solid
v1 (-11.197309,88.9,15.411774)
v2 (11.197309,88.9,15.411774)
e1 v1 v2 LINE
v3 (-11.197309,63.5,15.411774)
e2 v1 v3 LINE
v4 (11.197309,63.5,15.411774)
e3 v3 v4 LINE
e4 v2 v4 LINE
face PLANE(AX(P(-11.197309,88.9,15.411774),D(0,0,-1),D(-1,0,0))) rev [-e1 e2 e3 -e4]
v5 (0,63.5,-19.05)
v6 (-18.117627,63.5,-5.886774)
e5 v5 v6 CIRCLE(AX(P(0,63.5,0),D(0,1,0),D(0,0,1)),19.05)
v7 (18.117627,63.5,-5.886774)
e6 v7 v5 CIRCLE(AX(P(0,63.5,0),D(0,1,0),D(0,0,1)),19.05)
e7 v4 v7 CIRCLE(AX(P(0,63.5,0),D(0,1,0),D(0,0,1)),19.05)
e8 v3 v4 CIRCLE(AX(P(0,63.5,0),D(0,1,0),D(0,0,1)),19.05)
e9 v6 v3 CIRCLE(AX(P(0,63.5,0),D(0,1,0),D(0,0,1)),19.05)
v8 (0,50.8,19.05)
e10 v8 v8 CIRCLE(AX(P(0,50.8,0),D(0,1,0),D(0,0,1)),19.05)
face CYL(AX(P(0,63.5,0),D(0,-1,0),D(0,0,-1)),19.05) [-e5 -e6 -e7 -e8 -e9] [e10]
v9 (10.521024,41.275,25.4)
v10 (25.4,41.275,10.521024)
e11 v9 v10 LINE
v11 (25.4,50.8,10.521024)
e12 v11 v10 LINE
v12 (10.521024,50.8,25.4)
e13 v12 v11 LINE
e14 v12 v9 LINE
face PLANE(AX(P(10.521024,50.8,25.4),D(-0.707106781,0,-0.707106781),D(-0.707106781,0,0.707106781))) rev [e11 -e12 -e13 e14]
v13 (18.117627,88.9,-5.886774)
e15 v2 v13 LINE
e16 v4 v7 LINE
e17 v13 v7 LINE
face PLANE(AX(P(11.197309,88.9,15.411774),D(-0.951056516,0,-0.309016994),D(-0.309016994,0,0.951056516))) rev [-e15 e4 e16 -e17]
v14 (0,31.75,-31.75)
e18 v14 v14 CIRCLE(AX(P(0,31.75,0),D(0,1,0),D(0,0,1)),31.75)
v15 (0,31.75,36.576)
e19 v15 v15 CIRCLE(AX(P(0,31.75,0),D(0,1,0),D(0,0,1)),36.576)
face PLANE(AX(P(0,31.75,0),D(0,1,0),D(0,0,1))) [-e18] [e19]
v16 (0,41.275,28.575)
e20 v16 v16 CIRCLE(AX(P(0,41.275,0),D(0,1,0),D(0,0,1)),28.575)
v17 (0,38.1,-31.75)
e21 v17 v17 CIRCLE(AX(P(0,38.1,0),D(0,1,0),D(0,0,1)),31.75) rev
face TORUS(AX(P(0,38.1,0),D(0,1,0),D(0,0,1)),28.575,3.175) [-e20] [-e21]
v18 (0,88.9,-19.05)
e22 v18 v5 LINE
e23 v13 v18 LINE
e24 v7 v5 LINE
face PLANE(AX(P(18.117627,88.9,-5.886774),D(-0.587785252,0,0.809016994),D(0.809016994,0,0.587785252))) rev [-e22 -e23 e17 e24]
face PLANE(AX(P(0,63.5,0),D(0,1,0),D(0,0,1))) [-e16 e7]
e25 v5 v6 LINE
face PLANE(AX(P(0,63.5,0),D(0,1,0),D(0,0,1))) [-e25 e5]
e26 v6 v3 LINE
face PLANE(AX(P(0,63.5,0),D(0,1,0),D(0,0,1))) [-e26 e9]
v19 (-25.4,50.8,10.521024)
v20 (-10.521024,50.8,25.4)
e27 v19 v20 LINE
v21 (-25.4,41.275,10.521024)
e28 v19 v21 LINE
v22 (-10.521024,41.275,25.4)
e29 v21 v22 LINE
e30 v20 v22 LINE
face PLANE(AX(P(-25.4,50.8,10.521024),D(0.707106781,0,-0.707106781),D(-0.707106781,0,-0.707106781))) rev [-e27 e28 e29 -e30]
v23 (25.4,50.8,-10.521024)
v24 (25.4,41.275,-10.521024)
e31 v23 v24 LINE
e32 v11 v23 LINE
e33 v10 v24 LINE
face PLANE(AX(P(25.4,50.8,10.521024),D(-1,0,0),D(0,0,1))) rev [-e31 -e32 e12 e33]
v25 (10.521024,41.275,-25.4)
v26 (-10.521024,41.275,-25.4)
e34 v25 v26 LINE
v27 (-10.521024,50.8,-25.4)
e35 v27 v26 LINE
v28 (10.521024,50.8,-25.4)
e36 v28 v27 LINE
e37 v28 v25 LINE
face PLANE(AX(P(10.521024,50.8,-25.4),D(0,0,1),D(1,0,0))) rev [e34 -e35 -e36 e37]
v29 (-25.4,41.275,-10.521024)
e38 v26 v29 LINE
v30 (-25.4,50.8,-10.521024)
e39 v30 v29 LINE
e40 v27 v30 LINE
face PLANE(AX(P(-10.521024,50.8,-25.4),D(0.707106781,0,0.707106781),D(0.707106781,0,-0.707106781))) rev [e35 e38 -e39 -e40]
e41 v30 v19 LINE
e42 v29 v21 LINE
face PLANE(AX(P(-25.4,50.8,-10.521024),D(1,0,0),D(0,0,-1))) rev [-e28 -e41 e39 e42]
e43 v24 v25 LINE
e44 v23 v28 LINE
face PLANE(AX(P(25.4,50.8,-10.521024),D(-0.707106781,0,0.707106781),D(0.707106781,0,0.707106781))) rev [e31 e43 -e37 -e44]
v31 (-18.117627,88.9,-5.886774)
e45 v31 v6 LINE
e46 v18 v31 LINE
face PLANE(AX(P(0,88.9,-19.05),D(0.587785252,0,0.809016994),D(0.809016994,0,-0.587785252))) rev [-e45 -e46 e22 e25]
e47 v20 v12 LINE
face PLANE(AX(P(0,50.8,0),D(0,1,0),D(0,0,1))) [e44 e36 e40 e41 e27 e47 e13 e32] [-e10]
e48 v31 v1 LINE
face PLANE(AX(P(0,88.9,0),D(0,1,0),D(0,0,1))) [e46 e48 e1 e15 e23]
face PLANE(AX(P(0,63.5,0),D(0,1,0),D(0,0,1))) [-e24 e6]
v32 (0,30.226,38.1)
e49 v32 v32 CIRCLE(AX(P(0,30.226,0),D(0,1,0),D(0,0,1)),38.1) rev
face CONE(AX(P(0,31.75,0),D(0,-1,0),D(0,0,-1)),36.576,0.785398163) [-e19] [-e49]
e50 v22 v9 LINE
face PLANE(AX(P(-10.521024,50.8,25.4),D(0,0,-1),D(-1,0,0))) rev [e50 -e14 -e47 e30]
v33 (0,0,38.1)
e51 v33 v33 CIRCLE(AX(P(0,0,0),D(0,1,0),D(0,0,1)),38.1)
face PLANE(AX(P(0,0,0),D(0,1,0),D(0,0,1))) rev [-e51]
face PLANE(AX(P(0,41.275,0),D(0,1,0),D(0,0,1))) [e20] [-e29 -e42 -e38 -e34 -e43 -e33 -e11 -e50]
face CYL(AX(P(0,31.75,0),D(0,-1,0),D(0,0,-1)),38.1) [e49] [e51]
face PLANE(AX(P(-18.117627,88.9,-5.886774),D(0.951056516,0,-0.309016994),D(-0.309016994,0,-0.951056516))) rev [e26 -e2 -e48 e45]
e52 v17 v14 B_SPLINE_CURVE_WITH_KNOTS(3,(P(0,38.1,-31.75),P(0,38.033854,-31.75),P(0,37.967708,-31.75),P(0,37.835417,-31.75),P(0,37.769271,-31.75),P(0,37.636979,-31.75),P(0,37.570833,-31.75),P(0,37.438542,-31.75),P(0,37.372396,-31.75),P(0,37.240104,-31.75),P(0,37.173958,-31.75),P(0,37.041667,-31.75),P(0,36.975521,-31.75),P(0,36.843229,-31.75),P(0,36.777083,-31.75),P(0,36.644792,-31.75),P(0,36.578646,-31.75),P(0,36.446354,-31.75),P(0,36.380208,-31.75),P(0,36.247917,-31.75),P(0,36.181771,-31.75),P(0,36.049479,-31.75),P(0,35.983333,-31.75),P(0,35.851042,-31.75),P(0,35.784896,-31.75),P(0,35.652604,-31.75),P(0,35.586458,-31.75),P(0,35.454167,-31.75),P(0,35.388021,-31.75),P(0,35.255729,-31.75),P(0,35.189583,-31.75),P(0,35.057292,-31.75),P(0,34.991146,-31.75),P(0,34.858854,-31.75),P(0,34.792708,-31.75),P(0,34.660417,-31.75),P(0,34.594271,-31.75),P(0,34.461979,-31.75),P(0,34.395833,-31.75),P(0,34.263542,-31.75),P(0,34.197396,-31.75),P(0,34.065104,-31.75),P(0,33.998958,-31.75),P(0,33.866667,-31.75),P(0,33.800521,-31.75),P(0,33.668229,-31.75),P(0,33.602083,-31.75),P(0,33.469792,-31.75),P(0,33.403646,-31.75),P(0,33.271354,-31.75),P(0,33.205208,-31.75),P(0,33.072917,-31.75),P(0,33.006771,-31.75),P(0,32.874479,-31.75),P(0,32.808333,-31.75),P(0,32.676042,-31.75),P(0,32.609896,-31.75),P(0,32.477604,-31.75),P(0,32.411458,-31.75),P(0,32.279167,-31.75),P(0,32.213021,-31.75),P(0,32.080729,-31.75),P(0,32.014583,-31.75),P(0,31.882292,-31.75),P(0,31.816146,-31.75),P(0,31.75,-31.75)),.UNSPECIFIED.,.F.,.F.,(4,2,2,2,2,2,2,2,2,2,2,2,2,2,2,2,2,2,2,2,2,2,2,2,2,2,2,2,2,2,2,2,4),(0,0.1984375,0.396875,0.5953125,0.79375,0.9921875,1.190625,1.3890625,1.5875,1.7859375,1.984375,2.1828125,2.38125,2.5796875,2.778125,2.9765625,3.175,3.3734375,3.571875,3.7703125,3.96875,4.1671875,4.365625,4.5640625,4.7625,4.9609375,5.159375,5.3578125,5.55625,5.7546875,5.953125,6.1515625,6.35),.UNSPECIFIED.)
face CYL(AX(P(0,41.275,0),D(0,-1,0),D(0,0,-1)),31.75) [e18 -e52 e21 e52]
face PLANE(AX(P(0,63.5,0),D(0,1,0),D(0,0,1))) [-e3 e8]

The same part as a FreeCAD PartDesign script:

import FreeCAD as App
import Part
import Sketcher
Q = App.Units.Quantity


def edges_at(feature, points):
    """Names of the edges that pass closest to the given points."""
    edges = feature.Shape.Edges
    near = lambda p: min(range(len(edges)), key=lambda i: edges[i].distToShape(Part.Vertex(*p))[0])
    return sorted({f"Edge{near(p) + 1}" for p in points})

doc = App.newDocument("Part")
body = doc.addObject("PartDesign::Body", "Body")

# Sketch on XZ plane
sketch1 = body.newObject("Sketcher::SketchObject", "Sketch")
sketch1.AttachmentSupport = (doc.getObject("XZ_Plane"), [""])
sketch1.MapMode = "FlatFace"
sketch1.addGeometry(Part.Circle(App.Vector(0, 0, 0), App.Vector(0, 0, 1), 38), False)
sketch1.addConstraint(Sketcher.Constraint("Coincident", 0, 3, -1, 1))
sketch1.addConstraint(Sketcher.Constraint("Diameter", 0, Q("3 in")))
pad1 = body.newObject("PartDesign::Pad", "Pad")
pad1.Profile = sketch1
pad1.Length = Q("1.25 in")
pad1.Reversed = True
doc.recompute()

chamfer = body.newObject("PartDesign::Chamfer", "Chamfer")
chamfer.Base = (pad1, edges_at(pad1, [(0, 31.75, -38.1)]))
chamfer.Size = Q("0.06 in")

# Sketch on XZ plane
sketch2 = body.newObject("Sketcher::SketchObject", "Sketch001")
sketch2.AttachmentSupport = (doc.getObject("XZ_Plane"), [""])
sketch2.MapMode = "FlatFace"
sketch2.AttachmentOffset = App.Placement(App.Vector(0, 0, -1.25 * 25.4), App.Rotation())
sketch2.addGeometry(Part.Circle(App.Vector(0, 0, 0), App.Vector(0, 0, 1), 32), False)
sketch2.addConstraint(Sketcher.Constraint("Coincident", 0, 3, -1, 1))
sketch2.addConstraint(Sketcher.Constraint("Diameter", 0, Q("2.5 in")))
pad2 = body.newObject("PartDesign::Pad", "Pad001")
pad2.Profile = sketch2
pad2.Length = Q("0.375 in")
pad2.Reversed = True
doc.recompute()

fillet = body.newObject("PartDesign::Fillet", "Fillet")
fillet.Base = (pad2, edges_at(pad2, [(0, 41.275, 31.75)]))
fillet.Radius = Q("0.125 in")

# Sketch on XZ plane
sketch3 = body.newObject("Sketcher::SketchObject", "Sketch002")
sketch3.AttachmentSupport = (doc.getObject("XZ_Plane"), [""])
sketch3.MapMode = "FlatFace"
sketch3.AttachmentOffset = App.Placement(App.Vector(0, 0, -1.625 * 25.4), App.Rotation())
sketch3.addGeometry(Part.LineSegment(App.Vector(25, -11, 0), App.Vector(11, -25, 0)), False)
sketch3.addGeometry(Part.LineSegment(App.Vector(11, -25, 0), App.Vector(-11, -25, 0)), False)
sketch3.addGeometry(Part.LineSegment(App.Vector(-11, -25, 0), App.Vector(-25, -11, 0)), False)
sketch3.addGeometry(Part.LineSegment(App.Vector(-25, -11, 0), App.Vector(-25, 11, 0)), False)
sketch3.addGeometry(Part.LineSegment(App.Vector(-25, 11, 0), App.Vector(-11, 25, 0)), False)
sketch3.addGeometry(Part.LineSegment(App.Vector(-11, 25, 0), App.Vector(11, 25, 0)), False)
sketch3.addGeometry(Part.LineSegment(App.Vector(11, 25, 0), App.Vector(25, 11, 0)), False)
sketch3.addGeometry(Part.LineSegment(App.Vector(25, 11, 0), App.Vector(25, -11, 0)), False)
sketch3.addConstraint(Sketcher.Constraint("Coincident", 0, 2, 1, 1))
sketch3.addConstraint(Sketcher.Constraint("Coincident", 1, 2, 2, 1))
sketch3.addConstraint(Sketcher.Constraint("Coincident", 2, 2, 3, 1))
sketch3.addConstraint(Sketcher.Constraint("Coincident", 3, 2, 4, 1))
sketch3.addConstraint(Sketcher.Constraint("Coincident", 4, 2, 5, 1))
sketch3.addConstraint(Sketcher.Constraint("Coincident", 5, 2, 6, 1))
sketch3.addConstraint(Sketcher.Constraint("Coincident", 6, 2, 7, 1))
sketch3.addConstraint(Sketcher.Constraint("Coincident", 7, 2, 0, 1))
sketch3.addConstraint(Sketcher.Constraint("Horizontal", 1))
sketch3.addConstraint(Sketcher.Constraint("Vertical", 3))
sketch3.addConstraint(Sketcher.Constraint("Horizontal", 5))
sketch3.addConstraint(Sketcher.Constraint("Vertical", 7))
sketch3.addConstraint(Sketcher.Constraint("Symmetric", 0, 2, 4, 2, -1, 1))
sketch3.addConstraint(Sketcher.Constraint("Symmetric", 2, 2, 6, 2, -1, 1))
sketch3.addConstraint(Sketcher.Constraint("Perpendicular", 0, 2))
sketch3.addConstraint(Sketcher.Constraint("Perpendicular", 2, 4))
sketch3.addConstraint(Sketcher.Constraint("Perpendicular", 4, 6))
sketch3.addConstraint(Sketcher.Constraint("Horizontal", 3, 2, 6, 2))
sketch3.addConstraint(Sketcher.Constraint("Vertical", 1, 2, 4, 2))
sketch3.addConstraint(Sketcher.Constraint("Equal", 5, 3))
sketch3.addConstraint(Sketcher.Constraint("DistanceY", 0, 2, -1, 1, Q("1 in")))
sketch3.addConstraint(Sketcher.Constraint("DistanceX", 1, 2, 1, 1, Q("21.042049 mm")))
pad3 = body.newObject("PartDesign::Pad", "Pad002")
pad3.Profile = sketch3
pad3.Length = Q("0.375 in")
pad3.Reversed = True

# Sketch on XZ plane
sketch4 = body.newObject("Sketcher::SketchObject", "Sketch003")
sketch4.AttachmentSupport = (doc.getObject("XZ_Plane"), [""])
sketch4.MapMode = "FlatFace"
sketch4.AttachmentOffset = App.Placement(App.Vector(0, 0, -2 * 25.4), App.Rotation())
sketch4.addGeometry(Part.Circle(App.Vector(0, 0, 0), App.Vector(0, 0, 1), 19), False)
sketch4.addConstraint(Sketcher.Constraint("Coincident", 0, 3, -1, 1))
sketch4.addConstraint(Sketcher.Constraint("Diameter", 0, Q("1.5 in")))
pad4 = body.newObject("PartDesign::Pad", "Pad003")
pad4.Profile = sketch4
pad4.Length = Q("0.5 in")
pad4.Reversed = True

# Sketch on XZ plane
sketch5 = body.newObject("Sketcher::SketchObject", "Sketch004")
sketch5.AttachmentSupport = (doc.getObject("XZ_Plane"), [""])
sketch5.MapMode = "FlatFace"
sketch5.AttachmentOffset = App.Placement(App.Vector(0, 0, -2.5 * 25.4), App.Rotation())
sketch5.addGeometry(Part.LineSegment(App.Vector(-11, 15, 0), App.Vector(11, 15, 0)), False)
sketch5.addGeometry(Part.LineSegment(App.Vector(11, 15, 0), App.Vector(18, -6, 0)), False)
sketch5.addGeometry(Part.LineSegment(App.Vector(18, -6, 0), App.Vector(0, -19, 0)), False)
sketch5.addGeometry(Part.LineSegment(App.Vector(0, -19, 0), App.Vector(-18, -6, 0)), False)
sketch5.addGeometry(Part.LineSegment(App.Vector(-18, -6, 0), App.Vector(-11, 15, 0)), False)
sketch5.addConstraint(Sketcher.Constraint("Coincident", 0, 2, 1, 1))
sketch5.addConstraint(Sketcher.Constraint("Coincident", 1, 2, 2, 1))
sketch5.addConstraint(Sketcher.Constraint("Coincident", 2, 2, 3, 1))
sketch5.addConstraint(Sketcher.Constraint("Coincident", 3, 2, 4, 1))
sketch5.addConstraint(Sketcher.Constraint("Coincident", 4, 2, 0, 1))
sketch5.addConstraint(Sketcher.Constraint("Horizontal", 0))
sketch5.addConstraint(Sketcher.Constraint("Symmetric", 1, 2, 3, 2, -2))
sketch5.addConstraint(Sketcher.Constraint("PointOnObject", 2, 2, -2))
sketch5.addConstraint(Sketcher.Constraint("Equal", 1, 2))
sketch5.addConstraint(Sketcher.Constraint("Equal", 3, 4))
sketch5.addConstraint(Sketcher.Constraint("Angle", 1, Q("-72 deg")))
sketch5.addConstraint(Sketcher.Constraint("Angle", 2, Q("-144 deg")))
sketch5.addConstraint(Sketcher.Constraint("DistanceY", 2, 2, -1, 1, Q("0.75 in")))
sketch5.addConstraint(Sketcher.Constraint("DistanceX", 0, 1, 0, 2, Q("22.394618 mm")))
pad5 = body.newObject("PartDesign::Pad", "Pad004")
pad5.Profile = sketch5
pad5.Length = Q("1 in")
pad5.Reversed = True

doc.recompute()
